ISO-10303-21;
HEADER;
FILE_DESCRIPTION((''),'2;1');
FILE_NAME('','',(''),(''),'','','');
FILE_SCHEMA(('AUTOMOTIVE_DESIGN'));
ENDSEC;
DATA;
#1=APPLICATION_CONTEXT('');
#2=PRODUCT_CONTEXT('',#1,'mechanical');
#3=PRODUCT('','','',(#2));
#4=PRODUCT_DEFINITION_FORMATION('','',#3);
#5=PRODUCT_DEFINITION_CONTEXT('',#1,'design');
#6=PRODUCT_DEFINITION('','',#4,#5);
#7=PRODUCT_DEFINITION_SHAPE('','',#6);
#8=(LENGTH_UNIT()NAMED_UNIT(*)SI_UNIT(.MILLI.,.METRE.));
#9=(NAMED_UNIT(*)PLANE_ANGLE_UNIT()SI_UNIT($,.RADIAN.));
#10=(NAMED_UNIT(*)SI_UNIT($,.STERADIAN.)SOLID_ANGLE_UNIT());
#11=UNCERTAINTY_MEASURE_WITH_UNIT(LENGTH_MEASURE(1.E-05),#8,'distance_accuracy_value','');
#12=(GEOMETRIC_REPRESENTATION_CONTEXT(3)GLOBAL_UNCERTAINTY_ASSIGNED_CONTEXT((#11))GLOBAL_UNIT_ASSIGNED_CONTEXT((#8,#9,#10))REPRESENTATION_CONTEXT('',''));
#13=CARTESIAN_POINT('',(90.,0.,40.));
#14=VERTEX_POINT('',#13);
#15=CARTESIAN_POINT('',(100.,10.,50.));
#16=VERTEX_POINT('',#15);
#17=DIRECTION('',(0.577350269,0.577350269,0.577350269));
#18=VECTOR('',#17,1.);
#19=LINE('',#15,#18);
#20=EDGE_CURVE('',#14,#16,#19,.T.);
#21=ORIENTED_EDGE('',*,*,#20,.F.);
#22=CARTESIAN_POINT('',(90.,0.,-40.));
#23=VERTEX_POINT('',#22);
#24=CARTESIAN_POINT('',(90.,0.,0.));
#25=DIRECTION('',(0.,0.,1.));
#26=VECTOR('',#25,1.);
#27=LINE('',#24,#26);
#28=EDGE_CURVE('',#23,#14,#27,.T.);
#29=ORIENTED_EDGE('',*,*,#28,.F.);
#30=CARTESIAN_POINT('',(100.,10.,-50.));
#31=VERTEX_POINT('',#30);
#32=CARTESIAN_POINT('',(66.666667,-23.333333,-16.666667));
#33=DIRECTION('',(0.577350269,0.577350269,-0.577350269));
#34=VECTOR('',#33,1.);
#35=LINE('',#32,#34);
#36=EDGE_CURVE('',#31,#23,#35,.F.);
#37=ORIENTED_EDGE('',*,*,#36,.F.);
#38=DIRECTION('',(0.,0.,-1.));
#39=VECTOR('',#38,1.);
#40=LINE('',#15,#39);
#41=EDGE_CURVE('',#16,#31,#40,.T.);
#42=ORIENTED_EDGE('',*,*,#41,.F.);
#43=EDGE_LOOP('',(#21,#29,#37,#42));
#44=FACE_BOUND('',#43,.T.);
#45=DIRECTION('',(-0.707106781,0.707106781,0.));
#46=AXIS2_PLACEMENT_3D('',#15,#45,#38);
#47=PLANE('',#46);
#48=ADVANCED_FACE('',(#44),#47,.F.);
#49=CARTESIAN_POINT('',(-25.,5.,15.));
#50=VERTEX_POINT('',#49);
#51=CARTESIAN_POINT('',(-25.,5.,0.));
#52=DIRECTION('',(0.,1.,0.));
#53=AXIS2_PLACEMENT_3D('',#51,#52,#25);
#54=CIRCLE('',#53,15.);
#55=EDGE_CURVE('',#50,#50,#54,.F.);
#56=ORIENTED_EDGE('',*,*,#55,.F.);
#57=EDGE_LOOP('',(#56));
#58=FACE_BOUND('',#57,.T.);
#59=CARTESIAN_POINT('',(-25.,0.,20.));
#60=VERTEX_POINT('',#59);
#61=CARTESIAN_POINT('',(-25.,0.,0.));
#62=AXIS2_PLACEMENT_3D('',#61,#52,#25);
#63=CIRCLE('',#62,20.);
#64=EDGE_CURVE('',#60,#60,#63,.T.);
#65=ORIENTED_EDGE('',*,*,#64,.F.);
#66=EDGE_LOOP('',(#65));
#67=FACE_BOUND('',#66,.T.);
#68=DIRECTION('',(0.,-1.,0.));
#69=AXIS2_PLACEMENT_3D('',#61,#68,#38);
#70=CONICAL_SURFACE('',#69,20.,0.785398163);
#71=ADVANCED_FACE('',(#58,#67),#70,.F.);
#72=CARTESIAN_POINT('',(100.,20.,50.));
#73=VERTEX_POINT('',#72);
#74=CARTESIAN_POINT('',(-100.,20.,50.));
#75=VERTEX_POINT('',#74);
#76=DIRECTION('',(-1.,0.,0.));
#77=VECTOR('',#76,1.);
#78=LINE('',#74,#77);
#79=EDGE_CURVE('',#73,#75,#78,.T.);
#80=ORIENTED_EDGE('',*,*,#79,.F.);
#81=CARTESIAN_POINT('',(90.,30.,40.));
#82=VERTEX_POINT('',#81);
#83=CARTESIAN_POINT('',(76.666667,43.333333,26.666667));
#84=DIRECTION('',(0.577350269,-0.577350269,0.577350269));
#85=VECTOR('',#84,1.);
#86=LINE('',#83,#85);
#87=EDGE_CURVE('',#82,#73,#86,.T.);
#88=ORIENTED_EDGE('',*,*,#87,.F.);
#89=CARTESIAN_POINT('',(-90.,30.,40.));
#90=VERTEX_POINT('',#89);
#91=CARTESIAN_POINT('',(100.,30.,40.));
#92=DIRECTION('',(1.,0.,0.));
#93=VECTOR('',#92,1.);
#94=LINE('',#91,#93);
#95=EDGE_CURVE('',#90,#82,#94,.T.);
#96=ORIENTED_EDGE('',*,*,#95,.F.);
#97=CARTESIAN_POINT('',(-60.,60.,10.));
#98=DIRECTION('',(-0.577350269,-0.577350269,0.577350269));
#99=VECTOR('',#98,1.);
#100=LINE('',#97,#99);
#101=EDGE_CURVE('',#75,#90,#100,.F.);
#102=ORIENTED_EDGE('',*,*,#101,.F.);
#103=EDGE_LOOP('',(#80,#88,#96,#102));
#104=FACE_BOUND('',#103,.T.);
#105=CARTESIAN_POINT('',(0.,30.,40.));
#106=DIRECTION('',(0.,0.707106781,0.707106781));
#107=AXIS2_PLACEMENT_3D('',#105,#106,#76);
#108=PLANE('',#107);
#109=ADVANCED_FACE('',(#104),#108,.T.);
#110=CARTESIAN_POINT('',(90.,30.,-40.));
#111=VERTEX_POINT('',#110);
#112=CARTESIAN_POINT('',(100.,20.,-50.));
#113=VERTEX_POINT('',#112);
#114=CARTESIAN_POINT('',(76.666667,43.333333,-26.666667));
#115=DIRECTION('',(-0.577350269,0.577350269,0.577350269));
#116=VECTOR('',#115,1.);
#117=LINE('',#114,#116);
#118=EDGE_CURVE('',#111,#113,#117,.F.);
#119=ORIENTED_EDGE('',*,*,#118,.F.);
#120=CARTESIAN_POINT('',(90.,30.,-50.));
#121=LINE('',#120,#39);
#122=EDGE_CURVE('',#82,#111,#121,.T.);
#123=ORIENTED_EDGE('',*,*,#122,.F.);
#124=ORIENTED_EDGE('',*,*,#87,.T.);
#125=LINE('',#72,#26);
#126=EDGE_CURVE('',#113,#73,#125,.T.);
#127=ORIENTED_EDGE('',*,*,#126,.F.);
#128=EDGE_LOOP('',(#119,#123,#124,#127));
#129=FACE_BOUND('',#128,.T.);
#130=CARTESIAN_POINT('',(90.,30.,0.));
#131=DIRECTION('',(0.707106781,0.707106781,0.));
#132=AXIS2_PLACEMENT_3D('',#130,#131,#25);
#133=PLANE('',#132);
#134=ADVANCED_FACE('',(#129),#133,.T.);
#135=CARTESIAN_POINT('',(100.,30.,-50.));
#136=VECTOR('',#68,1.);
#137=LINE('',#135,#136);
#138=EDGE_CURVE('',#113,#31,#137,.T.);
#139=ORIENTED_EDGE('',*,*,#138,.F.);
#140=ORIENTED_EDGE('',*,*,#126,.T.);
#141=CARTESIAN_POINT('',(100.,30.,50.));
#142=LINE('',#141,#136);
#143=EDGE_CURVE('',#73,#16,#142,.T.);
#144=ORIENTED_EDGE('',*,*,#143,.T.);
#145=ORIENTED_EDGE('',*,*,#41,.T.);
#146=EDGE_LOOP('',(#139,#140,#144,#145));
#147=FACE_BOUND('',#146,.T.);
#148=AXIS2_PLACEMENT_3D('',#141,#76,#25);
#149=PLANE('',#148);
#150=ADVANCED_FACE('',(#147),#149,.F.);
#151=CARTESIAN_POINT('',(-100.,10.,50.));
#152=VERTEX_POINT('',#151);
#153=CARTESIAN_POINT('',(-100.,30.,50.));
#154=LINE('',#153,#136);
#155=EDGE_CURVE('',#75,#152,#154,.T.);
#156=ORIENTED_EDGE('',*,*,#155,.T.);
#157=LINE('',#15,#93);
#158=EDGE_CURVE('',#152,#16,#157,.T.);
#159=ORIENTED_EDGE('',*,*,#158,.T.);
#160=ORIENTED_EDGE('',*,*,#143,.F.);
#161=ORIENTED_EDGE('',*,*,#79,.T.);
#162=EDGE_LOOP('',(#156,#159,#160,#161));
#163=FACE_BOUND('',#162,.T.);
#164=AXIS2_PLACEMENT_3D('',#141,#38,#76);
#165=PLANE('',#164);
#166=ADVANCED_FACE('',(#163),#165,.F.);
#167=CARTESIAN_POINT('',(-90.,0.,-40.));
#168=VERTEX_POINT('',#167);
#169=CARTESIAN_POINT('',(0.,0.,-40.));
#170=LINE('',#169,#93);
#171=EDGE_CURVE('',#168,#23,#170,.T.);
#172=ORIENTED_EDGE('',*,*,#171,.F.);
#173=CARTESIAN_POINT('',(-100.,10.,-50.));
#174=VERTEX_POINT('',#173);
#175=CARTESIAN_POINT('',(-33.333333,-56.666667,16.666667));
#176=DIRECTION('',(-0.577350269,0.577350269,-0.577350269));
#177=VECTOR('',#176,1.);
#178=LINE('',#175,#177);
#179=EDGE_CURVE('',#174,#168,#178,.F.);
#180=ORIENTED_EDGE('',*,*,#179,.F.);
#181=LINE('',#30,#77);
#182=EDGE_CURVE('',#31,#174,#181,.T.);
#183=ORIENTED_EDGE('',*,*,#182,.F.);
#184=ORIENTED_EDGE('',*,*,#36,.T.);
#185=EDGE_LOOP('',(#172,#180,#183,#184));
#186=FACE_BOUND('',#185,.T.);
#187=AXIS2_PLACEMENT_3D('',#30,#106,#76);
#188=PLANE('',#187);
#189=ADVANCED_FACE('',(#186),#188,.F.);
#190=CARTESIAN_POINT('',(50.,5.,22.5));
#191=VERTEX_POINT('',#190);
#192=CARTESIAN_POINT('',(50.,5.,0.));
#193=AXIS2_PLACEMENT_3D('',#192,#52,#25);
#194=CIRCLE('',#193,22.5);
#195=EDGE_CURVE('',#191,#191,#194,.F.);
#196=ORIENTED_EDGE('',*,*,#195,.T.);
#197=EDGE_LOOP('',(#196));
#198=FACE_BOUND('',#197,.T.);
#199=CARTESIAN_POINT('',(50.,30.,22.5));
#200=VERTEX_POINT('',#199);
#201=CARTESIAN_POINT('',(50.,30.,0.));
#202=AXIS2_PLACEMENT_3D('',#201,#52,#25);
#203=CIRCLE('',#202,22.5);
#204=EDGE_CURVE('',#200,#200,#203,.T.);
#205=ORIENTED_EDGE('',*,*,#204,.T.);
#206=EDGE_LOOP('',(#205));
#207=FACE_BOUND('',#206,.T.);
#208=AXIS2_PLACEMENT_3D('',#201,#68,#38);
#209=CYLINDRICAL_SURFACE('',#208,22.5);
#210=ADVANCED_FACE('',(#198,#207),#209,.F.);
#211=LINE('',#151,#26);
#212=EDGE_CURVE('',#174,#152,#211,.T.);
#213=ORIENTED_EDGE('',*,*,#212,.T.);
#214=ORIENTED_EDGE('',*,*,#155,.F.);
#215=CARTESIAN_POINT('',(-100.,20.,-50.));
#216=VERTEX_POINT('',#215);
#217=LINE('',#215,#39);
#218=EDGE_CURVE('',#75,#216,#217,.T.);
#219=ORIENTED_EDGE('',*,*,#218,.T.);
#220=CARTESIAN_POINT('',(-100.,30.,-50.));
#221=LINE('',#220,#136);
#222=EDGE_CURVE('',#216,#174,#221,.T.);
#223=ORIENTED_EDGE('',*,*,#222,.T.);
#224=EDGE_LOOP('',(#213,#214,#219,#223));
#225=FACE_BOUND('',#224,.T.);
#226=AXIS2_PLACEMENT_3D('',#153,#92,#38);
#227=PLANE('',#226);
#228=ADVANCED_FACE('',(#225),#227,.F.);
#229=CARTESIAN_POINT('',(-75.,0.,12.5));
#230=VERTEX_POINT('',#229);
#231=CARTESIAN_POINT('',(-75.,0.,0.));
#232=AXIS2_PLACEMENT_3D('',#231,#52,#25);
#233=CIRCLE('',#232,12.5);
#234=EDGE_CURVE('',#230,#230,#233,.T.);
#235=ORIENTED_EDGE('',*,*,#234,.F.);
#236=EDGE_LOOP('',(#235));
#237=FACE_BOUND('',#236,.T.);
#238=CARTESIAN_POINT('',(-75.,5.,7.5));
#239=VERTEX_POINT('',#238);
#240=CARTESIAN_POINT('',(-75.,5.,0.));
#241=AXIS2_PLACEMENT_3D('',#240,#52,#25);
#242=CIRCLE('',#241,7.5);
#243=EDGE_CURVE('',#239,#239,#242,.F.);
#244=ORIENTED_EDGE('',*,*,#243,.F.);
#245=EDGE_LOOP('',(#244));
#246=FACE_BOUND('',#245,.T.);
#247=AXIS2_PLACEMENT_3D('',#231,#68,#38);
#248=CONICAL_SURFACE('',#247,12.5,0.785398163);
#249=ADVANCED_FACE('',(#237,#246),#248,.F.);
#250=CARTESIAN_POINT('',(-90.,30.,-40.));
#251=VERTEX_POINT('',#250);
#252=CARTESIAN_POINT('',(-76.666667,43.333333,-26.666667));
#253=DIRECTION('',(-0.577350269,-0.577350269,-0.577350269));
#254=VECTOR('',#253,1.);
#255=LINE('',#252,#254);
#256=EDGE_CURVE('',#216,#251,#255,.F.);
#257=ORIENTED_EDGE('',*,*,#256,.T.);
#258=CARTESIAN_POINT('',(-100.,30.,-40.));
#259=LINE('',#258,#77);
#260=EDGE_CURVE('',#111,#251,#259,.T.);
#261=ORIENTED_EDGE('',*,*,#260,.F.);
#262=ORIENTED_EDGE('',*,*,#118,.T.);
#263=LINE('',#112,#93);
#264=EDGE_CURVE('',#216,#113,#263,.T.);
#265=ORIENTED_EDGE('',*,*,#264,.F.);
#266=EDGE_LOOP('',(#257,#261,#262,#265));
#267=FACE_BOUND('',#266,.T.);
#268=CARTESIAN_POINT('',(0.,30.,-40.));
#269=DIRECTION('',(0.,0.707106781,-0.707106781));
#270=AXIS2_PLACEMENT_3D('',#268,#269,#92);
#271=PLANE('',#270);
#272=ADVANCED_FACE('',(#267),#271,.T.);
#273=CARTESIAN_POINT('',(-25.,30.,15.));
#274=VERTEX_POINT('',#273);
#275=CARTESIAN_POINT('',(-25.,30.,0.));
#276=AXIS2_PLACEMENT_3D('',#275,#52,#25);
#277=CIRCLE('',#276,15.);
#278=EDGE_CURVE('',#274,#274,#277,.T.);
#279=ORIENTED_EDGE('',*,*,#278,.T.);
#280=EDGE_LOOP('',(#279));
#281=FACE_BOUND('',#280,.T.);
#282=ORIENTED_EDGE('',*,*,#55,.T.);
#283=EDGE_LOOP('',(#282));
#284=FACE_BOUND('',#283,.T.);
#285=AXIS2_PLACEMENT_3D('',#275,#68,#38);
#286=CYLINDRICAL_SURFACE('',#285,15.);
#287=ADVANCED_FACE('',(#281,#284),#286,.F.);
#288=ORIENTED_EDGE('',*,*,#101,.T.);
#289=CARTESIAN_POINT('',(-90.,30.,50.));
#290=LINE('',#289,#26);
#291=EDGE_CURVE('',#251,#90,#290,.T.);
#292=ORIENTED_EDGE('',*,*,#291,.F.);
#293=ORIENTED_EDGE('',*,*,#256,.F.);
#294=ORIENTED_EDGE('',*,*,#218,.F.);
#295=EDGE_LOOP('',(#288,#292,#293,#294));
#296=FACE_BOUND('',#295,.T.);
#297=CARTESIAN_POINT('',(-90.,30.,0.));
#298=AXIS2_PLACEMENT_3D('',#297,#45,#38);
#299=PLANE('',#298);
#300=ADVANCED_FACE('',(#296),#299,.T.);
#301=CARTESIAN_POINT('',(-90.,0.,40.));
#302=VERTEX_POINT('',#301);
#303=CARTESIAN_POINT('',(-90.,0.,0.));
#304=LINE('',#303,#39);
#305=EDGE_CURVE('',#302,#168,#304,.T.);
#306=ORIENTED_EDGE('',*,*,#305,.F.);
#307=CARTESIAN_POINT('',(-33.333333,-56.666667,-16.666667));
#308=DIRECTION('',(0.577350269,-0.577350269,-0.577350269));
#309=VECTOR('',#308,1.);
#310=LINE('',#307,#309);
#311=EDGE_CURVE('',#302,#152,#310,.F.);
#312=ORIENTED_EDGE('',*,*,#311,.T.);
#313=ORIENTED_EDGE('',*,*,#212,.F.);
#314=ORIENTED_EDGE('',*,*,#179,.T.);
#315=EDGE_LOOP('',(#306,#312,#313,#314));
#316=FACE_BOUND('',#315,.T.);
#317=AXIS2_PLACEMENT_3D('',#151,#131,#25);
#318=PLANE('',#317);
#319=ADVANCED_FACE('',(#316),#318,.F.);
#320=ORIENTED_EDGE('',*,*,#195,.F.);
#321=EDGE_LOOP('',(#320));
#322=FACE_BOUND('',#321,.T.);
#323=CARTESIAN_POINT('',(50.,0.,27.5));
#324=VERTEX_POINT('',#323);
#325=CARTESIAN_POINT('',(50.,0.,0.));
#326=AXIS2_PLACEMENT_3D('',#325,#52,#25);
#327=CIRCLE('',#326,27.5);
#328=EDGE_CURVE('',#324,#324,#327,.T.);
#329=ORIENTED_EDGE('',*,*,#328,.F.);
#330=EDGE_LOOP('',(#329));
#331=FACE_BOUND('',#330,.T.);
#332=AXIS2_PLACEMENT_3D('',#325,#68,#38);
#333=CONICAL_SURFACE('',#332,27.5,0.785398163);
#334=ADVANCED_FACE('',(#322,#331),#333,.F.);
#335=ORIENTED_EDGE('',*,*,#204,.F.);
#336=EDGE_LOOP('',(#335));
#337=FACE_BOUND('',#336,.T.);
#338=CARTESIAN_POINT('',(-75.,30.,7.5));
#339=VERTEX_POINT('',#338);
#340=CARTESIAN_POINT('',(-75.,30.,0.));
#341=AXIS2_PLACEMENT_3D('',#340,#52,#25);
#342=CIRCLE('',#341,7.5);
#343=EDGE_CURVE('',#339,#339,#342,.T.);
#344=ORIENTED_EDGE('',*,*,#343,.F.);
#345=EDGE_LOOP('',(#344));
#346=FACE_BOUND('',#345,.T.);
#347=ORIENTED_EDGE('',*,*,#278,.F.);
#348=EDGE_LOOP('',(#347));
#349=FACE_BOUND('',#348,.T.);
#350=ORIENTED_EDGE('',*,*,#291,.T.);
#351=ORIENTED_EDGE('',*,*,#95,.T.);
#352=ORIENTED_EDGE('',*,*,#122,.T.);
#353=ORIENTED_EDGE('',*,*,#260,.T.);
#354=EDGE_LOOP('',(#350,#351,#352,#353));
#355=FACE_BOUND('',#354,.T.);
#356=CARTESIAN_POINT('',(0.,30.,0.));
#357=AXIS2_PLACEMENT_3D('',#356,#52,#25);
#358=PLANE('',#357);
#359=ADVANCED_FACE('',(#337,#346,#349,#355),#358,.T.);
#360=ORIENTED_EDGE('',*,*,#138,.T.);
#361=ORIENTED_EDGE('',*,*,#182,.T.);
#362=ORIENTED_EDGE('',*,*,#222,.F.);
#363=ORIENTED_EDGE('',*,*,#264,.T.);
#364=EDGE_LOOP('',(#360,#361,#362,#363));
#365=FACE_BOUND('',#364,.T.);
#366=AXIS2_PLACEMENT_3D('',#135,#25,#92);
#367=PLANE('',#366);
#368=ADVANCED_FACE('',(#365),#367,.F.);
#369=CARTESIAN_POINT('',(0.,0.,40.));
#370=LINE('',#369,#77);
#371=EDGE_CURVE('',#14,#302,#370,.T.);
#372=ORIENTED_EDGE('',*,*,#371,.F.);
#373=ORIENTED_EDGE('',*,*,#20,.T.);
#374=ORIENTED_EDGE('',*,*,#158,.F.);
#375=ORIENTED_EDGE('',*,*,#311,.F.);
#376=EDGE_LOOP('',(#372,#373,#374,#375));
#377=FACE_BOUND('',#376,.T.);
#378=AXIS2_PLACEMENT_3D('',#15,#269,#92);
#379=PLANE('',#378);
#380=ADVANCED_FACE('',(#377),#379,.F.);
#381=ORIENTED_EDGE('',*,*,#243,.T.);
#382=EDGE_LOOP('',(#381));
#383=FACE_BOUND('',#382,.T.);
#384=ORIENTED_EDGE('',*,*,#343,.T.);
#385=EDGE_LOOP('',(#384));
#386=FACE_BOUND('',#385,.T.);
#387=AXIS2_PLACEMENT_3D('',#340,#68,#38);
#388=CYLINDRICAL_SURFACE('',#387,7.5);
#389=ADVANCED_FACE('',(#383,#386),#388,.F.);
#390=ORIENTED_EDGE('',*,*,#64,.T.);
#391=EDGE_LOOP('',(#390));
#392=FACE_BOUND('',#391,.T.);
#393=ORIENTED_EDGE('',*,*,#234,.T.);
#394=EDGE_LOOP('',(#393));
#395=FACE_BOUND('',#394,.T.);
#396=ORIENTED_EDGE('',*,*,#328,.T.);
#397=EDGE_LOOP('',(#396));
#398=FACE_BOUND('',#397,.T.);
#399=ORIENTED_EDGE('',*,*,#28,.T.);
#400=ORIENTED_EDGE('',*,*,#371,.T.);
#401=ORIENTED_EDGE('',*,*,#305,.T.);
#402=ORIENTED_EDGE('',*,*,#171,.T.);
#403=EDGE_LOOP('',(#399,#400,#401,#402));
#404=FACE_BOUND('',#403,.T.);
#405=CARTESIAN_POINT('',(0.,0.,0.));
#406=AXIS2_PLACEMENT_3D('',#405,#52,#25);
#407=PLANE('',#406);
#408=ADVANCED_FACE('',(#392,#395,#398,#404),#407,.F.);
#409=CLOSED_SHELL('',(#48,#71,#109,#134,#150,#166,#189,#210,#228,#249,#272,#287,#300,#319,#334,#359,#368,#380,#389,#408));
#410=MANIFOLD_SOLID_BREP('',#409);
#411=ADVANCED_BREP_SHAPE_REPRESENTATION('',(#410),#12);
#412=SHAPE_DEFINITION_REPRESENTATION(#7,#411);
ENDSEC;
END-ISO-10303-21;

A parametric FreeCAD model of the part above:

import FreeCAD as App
import Part
import Sketcher


def edges_at(feature, points):
    """Names of the edges that pass closest to the given points."""
    edges = feature.Shape.Edges
    near = lambda p: min(range(len(edges)), key=lambda i: edges[i].distToShape(Part.Vertex(*p))[0])
    return sorted({f"Edge{near(p) + 1}" for p in points})


def add_polygon(sketch, points):
    """Adds a closed chain of lines whose ends are joined by coincident constraints."""
    first, n = sketch.GeometryCount, len(points)
    for a, b in zip(points, points[1:] + points[:1]):
        sketch.addGeometry(Part.LineSegment(App.Vector(*a, 0), App.Vector(*b, 0)), False)
    for i in range(n):
        sketch.addConstraint(Sketcher.Constraint("Coincident", first + i, 2, first + (i + 1) % n, 1))

doc = App.newDocument("Part")
body = doc.addObject("PartDesign::Body", "Body")

# Sketch on XZ plane
sketch1 = body.newObject("Sketcher::SketchObject", "Sketch")
sketch1.AttachmentSupport = (doc.getObject("XZ_Plane"), [""])
sketch1.MapMode = "FlatFace"
add_polygon(sketch1, [(-100, -50), (-100, 50), (100, 50), (100, -50)])  # lines 0-3
sketch1.addGeometry(Part.Circle(App.Vector(-75, 0, 0), App.Vector(0, 0, 1), 7.5), False)  # 4
sketch1.addGeometry(Part.Circle(App.Vector(-25, 0, 0), App.Vector(0, 0, 1), 15), False)  # 5
sketch1.addGeometry(Part.Circle(App.Vector(50, 0, 0), App.Vector(0, 0, 1), 22.5), False)  # 6
sketch1.addConstraint([
    Sketcher.Constraint("Vertical", 0),
    Sketcher.Constraint("Horizontal", 1),
    Sketcher.Constraint("Vertical", 2),
    Sketcher.Constraint("Horizontal", 3),
    Sketcher.Constraint("Symmetric", 0, 2, 2, 2, -1, 1),
    Sketcher.Constraint("PointOnObject", 4, 3, -1),
    Sketcher.Constraint("PointOnObject", 5, 3, -1),
    Sketcher.Constraint("PointOnObject", 6, 3, -1),
    Sketcher.Constraint("Diameter", 4, 15.0),
    Sketcher.Constraint("Diameter", 5, 30.0),
    Sketcher.Constraint("Diameter", 6, 45.0),
    Sketcher.Constraint("DistanceX", 1, 1, 1, 2, 200.0),
    Sketcher.Constraint("DistanceY", 0, 1, 0, 2, 100.0),
    Sketcher.Constraint("DistanceX", 4, 3, -1, 1, 75.0),
    Sketcher.Constraint("DistanceX", 5, 3, -1, 1, 25.0),
    Sketcher.Constraint("DistanceX", -1, 1, 6, 3, 50.0),
])
pad1 = body.newObject("PartDesign::Pad", "Pad")
pad1.Profile = sketch1
pad1.Length = 30
pad1.Reversed = True
doc.recompute()

chamfer = body.newObject("PartDesign::Chamfer", "Chamfer")
chamfer.Base = (pad1, edges_at(pad1, [
    (100, 30, 0),
    (0, 30, -50),
    (-100, 30, 0),
    (0, 30, 50),
]))
chamfer.Size = 10
doc.recompute()

chamfer2 = body.newObject("PartDesign::Chamfer", "Chamfer001")
chamfer2.Base = (chamfer, edges_at(chamfer, [(-40, 0, 0), (-82.5, 0, 0), (27.5, 0, 0)]))
chamfer2.Size = 5
doc.recompute()

chamfer3 = body.newObject("PartDesign::Chamfer", "Chamfer002")
chamfer3.Base = (chamfer2, edges_at(chamfer2, [
    (0, 0, -50),
    (100, 0, 0),
    (0, 0, 50),
    (-100, 0, 0),
]))
chamfer3.Size = 10

doc.recompute()
